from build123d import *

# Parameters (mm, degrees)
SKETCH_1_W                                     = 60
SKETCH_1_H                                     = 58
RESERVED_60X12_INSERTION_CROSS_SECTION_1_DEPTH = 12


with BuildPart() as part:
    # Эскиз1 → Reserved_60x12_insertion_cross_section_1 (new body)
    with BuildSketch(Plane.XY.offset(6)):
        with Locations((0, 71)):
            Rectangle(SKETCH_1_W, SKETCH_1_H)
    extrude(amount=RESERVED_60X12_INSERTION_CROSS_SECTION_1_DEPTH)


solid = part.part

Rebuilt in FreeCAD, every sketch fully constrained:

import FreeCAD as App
import Part
import Sketcher
Q = App.Units.Quantity

doc = App.newDocument("Part")
body = doc.addObject("PartDesign::Body", "Body")

# Sketch on XY plane
sketch1 = body.newObject("Sketcher::SketchObject", "Sketch")
sketch1.AttachmentSupport = (doc.getObject("XY_Plane"), [""])
sketch1.MapMode = "FlatFace"
sketch1.AttachmentOffset = App.Placement(App.Vector(0, 0, 6), App.Rotation())
sketch1.addGeometry(Part.LineSegment(App.Vector(-30, 100, 0), App.Vector(-30, 42, 0)), False)
sketch1.addGeometry(Part.LineSegment(App.Vector(-30, 42, 0), App.Vector(30, 42, 0)), False)
sketch1.addGeometry(Part.LineSegment(App.Vector(30, 42, 0), App.Vector(30, 100, 0)), False)
sketch1.addGeometry(Part.LineSegment(App.Vector(30, 100, 0), App.Vector(-30, 100, 0)), False)
sketch1.addConstraint(Sketcher.Constraint("Coincident", 0, 2, 1, 1))
sketch1.addConstraint(Sketcher.Constraint("Coincident", 1, 2, 2, 1))
sketch1.addConstraint(Sketcher.Constraint("Coincident", 2, 2, 3, 1))
sketch1.addConstraint(Sketcher.Constraint("Coincident", 3, 2, 0, 1))
sketch1.addConstraint(Sketcher.Constraint("Vertical", 0))
sketch1.addConstraint(Sketcher.Constraint("Horizontal", 1))
sketch1.addConstraint(Sketcher.Constraint("Vertical", 2))
sketch1.addConstraint(Sketcher.Constraint("Horizontal", 3))
sketch1.addConstraint(Sketcher.Constraint("DistanceX", 1, 1, 1, 2, Q("60 mm")))
sketch1.addConstraint(Sketcher.Constraint("DistanceY", 0, 2, 0, 1, Q("58 mm")))
sketch1.addConstraint(Sketcher.Constraint("DistanceX", 0, 2, -1, 1, Q("30 mm")))
sketch1.addConstraint(Sketcher.Constraint("DistanceY", -1, 1, 0, 2, Q("42 mm")))
pad1 = body.newObject("PartDesign::Pad", "Pad")
pad1.Profile = sketch1
pad1.Length = 12

doc.recompute()
